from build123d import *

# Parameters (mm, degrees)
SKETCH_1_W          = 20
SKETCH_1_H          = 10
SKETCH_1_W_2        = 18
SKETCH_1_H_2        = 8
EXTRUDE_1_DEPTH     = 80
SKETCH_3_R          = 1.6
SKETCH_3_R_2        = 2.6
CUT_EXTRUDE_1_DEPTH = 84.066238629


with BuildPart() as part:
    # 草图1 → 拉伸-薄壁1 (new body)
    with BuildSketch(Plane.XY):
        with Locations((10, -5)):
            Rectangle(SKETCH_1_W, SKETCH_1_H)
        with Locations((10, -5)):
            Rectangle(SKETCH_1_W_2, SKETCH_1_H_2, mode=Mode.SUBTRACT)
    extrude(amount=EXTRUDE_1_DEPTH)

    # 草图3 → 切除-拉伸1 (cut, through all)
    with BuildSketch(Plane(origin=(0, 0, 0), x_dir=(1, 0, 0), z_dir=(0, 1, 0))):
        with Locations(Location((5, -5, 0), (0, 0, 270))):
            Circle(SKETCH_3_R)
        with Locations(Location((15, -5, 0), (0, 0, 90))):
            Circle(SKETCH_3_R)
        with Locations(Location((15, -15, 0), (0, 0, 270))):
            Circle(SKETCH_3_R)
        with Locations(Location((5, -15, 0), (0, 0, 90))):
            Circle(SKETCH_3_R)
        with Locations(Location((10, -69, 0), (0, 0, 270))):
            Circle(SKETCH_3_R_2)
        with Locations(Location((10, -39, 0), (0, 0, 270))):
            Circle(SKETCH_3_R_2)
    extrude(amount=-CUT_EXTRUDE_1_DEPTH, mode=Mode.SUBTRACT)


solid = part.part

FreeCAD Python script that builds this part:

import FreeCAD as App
import Part
import Sketcher
Q = App.Units.Quantity

doc = App.newDocument("Part")
body = doc.addObject("PartDesign::Body", "Body")

# Sketch on XY plane
sketch1 = body.newObject("Sketcher::SketchObject", "Sketch")
sketch1.AttachmentSupport = (doc.getObject("XY_Plane"), [""])
sketch1.MapMode = "FlatFace"
sketch1.addGeometry([
    Part.LineSegment(App.Vector(0, 0, 0), App.Vector(0, -10, 0)),  # 0
    Part.LineSegment(App.Vector(0, -10, 0), App.Vector(20, -10, 0)),  # 1
    Part.LineSegment(App.Vector(20, -10, 0), App.Vector(20, 0, 0)),  # 2
    Part.LineSegment(App.Vector(20, 0, 0), App.Vector(0, 0, 0)),  # 3
    Part.LineSegment(App.Vector(19, -9, 0), App.Vector(1, -9, 0)),  # 4
    Part.LineSegment(App.Vector(1, -9, 0), App.Vector(1, -1, 0)),  # 5
    Part.LineSegment(App.Vector(1, -1, 0), App.Vector(19, -1, 0)),  # 6
    Part.LineSegment(App.Vector(19, -1, 0), App.Vector(19, -9, 0)),  # 7
], False)
sketch1.addConstraint([
    Sketcher.Constraint("Coincident", 0, 2, 1, 1),
    Sketcher.Constraint("Coincident", 1, 2, 2, 1),
    Sketcher.Constraint("Coincident", 2, 2, 3, 1),
    Sketcher.Constraint("Coincident", 3, 2, 0, 1),
    Sketcher.Constraint("Coincident", 4, 2, 5, 1),
    Sketcher.Constraint("Coincident", 5, 2, 6, 1),
    Sketcher.Constraint("Coincident", 6, 2, 7, 1),
    Sketcher.Constraint("Coincident", 7, 2, 4, 1),
    Sketcher.Constraint("Vertical", 0),
    Sketcher.Constraint("Horizontal", 1),
    Sketcher.Constraint("Vertical", 2),
    Sketcher.Constraint("Horizontal", 3),
    Sketcher.Constraint("Horizontal", 4),
    Sketcher.Constraint("Vertical", 5),
    Sketcher.Constraint("Horizontal", 6),
    Sketcher.Constraint("Vertical", 7),
    Sketcher.Constraint("Coincident", 3, 2, -1, 1),
    Sketcher.Constraint("DistanceX", 1, 1, 1, 2, Q("20 mm")),
    Sketcher.Constraint("DistanceX", 4, 2, 4, 1, Q("18 mm")),
    Sketcher.Constraint("DistanceY", 0, 2, 0, 1, Q("10 mm")),
    Sketcher.Constraint("DistanceY", 5, 1, 5, 2, Q("8 mm")),
    Sketcher.Constraint("DistanceX", -1, 1, 4, 2, Q("1 mm")),
    Sketcher.Constraint("DistanceY", 4, 2, -1, 1, Q("9 mm")),
])
pad1 = body.newObject("PartDesign::Pad", "Pad")
pad1.Profile = sketch1
pad1.Length = 80

# Sketch on XZ plane
sketch2 = body.newObject("Sketcher::SketchObject", "Sketch001")
sketch2.AttachmentSupport = (doc.getObject("XZ_Plane"), [""])
sketch2.MapMode = "FlatFace"
sketch2.addGeometry([
    Part.Circle(App.Vector(5, 5, 0), App.Vector(0, 0, 1), 1.6),  # 0
    Part.Circle(App.Vector(15, 5, 0), App.Vector(0, 0, 1), 1.6),  # 1
    Part.Circle(App.Vector(15, 15, 0), App.Vector(0, 0, 1), 1.6),  # 2
    Part.Circle(App.Vector(5, 15, 0), App.Vector(0, 0, 1), 1.6),  # 3
    Part.Circle(App.Vector(10, 69, 0), App.Vector(0, 0, 1), 2.6),  # 4
    Part.Circle(App.Vector(10, 39, 0), App.Vector(0, 0, 1), 2.6),  # 5
], False)
sketch2.addConstraint([
    Sketcher.Constraint("Equal", 0, 1),
    Sketcher.Constraint("Equal", 1, 2),
    Sketcher.Constraint("Equal", 2, 3),
    Sketcher.Constraint("Equal", 4, 5),
    Sketcher.Constraint("Horizontal", 0, 3, 1, 3),
    Sketcher.Constraint("Horizontal", 2, 3, 3, 3),
    Sketcher.Constraint("Vertical", 1, 3, 2, 3),
    Sketcher.Constraint("Vertical", 0, 3, 3, 3),
    Sketcher.Constraint("Vertical", 4, 3, 5, 3),
    Sketcher.Constraint("Diameter", 0, Q("3.2 mm")),
    Sketcher.Constraint("Diameter", 4, Q("5.2 mm")),
    Sketcher.Constraint("DistanceX", -1, 1, 0, 3, Q("5 mm")),
    Sketcher.Constraint("DistanceY", -1, 1, 0, 3, Q("5 mm")),
    Sketcher.Constraint("DistanceX", -1, 1, 1, 3, Q("15 mm")),
    Sketcher.Constraint("DistanceY", -1, 1, 2, 3, Q("15 mm")),
    Sketcher.Constraint("DistanceX", -1, 1, 4, 3, Q("10 mm")),
    Sketcher.Constraint("DistanceY", -1, 1, 4, 3, Q("69 mm")),
    Sketcher.Constraint("DistanceY", -1, 1, 5, 3, Q("39 mm")),
])
pocket1 = body.newObject("PartDesign::Pocket", "Pocket")
pocket1.Profile = sketch2
pocket1.Type = "ThroughAll"
pocket1.Reversed = True

doc.recompute()
